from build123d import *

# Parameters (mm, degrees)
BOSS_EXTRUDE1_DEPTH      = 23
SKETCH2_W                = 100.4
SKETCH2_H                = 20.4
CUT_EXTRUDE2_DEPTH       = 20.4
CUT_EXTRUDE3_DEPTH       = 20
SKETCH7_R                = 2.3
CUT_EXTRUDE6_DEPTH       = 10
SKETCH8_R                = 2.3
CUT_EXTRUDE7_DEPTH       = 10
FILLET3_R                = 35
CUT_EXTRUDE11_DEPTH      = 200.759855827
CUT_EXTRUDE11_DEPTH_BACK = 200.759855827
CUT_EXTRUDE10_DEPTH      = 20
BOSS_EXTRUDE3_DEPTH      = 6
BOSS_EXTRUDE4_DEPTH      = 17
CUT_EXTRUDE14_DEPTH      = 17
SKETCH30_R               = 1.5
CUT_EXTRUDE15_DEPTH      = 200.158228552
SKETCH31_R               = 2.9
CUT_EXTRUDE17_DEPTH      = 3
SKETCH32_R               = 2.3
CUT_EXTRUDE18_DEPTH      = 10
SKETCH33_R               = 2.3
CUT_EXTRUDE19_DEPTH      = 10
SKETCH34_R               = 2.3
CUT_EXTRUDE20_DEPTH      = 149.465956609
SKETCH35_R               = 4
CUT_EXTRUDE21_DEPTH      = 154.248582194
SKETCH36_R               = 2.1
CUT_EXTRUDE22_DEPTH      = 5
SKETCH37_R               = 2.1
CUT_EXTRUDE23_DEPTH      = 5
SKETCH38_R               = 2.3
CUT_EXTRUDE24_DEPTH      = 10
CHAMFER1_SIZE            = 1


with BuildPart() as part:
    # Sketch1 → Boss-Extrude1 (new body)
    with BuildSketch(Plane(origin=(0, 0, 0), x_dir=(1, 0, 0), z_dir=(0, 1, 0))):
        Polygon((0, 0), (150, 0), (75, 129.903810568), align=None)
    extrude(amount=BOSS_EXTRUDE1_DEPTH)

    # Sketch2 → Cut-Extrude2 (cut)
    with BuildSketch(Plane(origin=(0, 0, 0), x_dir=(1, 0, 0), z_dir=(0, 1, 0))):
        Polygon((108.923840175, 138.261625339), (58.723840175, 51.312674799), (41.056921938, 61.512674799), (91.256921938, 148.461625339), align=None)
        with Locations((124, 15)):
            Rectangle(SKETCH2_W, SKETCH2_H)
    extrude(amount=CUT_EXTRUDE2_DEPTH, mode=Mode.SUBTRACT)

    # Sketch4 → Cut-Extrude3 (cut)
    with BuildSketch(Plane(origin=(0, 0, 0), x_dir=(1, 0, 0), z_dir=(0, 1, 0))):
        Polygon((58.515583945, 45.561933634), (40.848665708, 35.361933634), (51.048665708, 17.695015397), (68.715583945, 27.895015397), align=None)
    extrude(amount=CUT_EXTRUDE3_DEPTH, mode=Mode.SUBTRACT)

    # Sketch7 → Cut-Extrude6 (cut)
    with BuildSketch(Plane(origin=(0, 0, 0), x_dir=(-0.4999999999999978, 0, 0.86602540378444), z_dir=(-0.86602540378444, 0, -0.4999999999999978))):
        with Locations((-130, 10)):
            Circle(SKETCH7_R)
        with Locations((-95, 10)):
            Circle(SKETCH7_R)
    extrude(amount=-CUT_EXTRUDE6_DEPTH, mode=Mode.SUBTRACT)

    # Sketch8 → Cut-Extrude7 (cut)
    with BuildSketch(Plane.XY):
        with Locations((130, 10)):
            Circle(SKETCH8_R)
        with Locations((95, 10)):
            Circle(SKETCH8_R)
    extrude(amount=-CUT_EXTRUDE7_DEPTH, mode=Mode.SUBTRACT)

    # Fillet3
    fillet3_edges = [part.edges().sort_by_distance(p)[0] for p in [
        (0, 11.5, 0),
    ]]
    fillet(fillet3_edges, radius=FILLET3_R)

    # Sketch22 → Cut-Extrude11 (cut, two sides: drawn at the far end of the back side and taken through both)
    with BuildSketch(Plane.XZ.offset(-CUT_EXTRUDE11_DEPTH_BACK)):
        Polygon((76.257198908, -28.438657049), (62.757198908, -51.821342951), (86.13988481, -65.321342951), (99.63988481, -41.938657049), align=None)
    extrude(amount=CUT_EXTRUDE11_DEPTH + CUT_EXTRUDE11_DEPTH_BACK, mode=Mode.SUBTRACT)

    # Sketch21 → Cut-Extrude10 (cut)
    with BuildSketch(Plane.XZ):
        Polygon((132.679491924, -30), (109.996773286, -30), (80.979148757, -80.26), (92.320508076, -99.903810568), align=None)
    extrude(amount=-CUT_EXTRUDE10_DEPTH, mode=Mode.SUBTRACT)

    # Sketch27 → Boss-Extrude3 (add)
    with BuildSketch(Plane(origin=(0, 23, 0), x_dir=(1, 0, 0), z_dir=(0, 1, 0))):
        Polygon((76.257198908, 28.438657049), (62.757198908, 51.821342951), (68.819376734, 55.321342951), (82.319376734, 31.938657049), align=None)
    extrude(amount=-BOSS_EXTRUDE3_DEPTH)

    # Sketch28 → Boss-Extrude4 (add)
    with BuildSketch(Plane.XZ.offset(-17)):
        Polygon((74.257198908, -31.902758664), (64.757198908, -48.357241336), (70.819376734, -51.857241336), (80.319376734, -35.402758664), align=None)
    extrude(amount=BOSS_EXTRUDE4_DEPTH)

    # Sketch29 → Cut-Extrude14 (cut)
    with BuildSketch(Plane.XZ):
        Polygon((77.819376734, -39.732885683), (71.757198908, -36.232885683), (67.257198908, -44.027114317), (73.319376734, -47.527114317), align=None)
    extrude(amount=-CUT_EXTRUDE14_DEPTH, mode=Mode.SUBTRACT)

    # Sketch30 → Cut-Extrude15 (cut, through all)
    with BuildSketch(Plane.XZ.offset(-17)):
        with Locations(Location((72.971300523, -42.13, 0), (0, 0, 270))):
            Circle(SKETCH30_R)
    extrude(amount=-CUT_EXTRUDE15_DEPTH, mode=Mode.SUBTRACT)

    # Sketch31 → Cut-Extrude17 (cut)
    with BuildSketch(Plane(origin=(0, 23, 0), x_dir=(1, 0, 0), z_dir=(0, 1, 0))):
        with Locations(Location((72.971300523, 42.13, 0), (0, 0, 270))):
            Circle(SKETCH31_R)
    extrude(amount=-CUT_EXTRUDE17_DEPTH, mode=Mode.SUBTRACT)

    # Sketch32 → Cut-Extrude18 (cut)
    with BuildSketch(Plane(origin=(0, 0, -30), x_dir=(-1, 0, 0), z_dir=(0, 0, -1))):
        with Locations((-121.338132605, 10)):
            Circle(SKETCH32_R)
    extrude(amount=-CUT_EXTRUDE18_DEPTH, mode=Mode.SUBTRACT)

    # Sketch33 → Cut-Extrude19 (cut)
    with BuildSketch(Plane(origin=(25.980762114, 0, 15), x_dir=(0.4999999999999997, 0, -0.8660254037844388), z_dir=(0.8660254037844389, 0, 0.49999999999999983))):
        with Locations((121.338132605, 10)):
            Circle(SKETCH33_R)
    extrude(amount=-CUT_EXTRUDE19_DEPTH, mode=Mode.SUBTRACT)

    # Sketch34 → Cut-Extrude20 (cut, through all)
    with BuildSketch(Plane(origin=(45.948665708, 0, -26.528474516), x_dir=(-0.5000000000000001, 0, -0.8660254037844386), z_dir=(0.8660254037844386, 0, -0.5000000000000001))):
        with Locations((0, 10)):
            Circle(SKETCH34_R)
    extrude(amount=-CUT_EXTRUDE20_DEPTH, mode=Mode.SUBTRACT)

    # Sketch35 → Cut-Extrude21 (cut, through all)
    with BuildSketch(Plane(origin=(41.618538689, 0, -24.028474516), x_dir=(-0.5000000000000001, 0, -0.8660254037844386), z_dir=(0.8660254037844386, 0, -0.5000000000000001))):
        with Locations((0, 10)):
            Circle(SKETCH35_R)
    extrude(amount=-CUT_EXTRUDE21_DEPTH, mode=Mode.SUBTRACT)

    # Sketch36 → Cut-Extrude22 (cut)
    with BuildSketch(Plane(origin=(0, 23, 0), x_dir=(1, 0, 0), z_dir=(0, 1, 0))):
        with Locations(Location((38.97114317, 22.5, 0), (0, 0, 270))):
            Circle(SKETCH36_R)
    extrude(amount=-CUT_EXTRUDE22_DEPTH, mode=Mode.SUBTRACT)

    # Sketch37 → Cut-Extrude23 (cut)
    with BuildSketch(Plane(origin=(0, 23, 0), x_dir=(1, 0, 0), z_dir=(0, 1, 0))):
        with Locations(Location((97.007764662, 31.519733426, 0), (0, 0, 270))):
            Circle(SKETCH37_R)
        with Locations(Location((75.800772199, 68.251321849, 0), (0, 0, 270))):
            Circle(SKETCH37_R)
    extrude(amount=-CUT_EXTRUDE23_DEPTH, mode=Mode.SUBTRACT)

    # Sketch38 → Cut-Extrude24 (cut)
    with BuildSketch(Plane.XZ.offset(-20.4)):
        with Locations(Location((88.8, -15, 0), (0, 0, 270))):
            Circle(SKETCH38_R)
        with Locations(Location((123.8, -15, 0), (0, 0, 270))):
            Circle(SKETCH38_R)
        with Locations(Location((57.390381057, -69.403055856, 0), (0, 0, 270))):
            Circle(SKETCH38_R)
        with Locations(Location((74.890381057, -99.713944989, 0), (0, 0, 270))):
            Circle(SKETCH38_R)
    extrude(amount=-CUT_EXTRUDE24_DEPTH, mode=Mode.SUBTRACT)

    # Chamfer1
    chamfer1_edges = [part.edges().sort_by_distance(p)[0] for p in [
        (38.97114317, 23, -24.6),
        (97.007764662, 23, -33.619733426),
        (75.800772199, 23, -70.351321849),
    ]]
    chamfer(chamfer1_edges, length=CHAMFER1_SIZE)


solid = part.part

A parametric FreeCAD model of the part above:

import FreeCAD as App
import Part
import Sketcher
from FreeCAD import Vector
Q = App.Units.Quantity


def edges_at(feature, points):
    """Names of the edges that pass closest to the given points."""
    edges = feature.Shape.Edges
    near = lambda p: min(range(len(edges)), key=lambda i: edges[i].distToShape(Part.Vertex(*p))[0])
    return sorted({f"Edge{near(p) + 1}" for p in points})


def add_polygon(sketch, points):
    """Adds a closed chain of lines whose ends are joined by coincident constraints."""
    first, n = sketch.GeometryCount, len(points)
    for a, b in zip(points, points[1:] + points[:1]):
        sketch.addGeometry(Part.LineSegment(App.Vector(*a, 0), App.Vector(*b, 0)), False)
    for i in range(n):
        sketch.addConstraint(Sketcher.Constraint("Coincident", first + i, 2, first + (i + 1) % n, 1))

doc = App.newDocument("Part")
body = doc.addObject("PartDesign::Body", "Body")

# Sketch on XZ plane
sketch1 = body.newObject("Sketcher::SketchObject", "Sketch")
sketch1.AttachmentSupport = (doc.getObject("XZ_Plane"), [""])
sketch1.MapMode = "FlatFace"
add_polygon(sketch1, [(0, 0), (150, 0), (75, -129.903811)])  # lines 0-2
sketch1.addConstraint([
    Sketcher.Constraint("Horizontal", 0),
    Sketcher.Constraint("Coincident", 2, 2, -1, 1),
    Sketcher.Constraint("Equal", 1, 2),
    Sketcher.Constraint("DistanceX", 0, 1, 0, 2, 150.0),
    Sketcher.Constraint("Angle", 1, Q("-120 deg")),
])
pad1 = body.newObject("PartDesign::Pad", "Pad")
pad1.Profile = sketch1
pad1.Length = 23
pad1.Reversed = True

# Sketch on XZ plane
sketch2 = body.newObject("Sketcher::SketchObject", "Sketch001")
sketch2.AttachmentSupport = (doc.getObject("XZ_Plane"), [""])
sketch2.MapMode = "FlatFace"
add_polygon(sketch2, [(58.72384, -51.312675), (108.92384, -138.261625), (91.256922, -148.461625), (41.056922, -61.512675)])  # lines 0-3
add_polygon(sketch2, [(73.8, -25.2), (73.8, -4.8), (174.2, -4.8), (174.2, -25.2)])  # lines 4-7
sketch2.addConstraint([
    Sketcher.Constraint("Vertical", 4),
    Sketcher.Constraint("Horizontal", 5),
    Sketcher.Constraint("Vertical", 6),
    Sketcher.Constraint("Horizontal", 7),
    Sketcher.Constraint("Perpendicular", 0, 1),
    Sketcher.Constraint("Perpendicular", 1, 2),
    Sketcher.Constraint("Perpendicular", 2, 3),
    Sketcher.Constraint("Angle", 0, Q("-60 deg")),
    Sketcher.Constraint("DistanceX", 5, 1, 5, 2, 100.4),
    Sketcher.Constraint("DistanceY", 4, 1, 4, 2, 20.4),
    Sketcher.Constraint("Distance", 0, 100.4),
    Sketcher.Constraint("Distance", 1, 20.4),
    Sketcher.Constraint("DistanceX", -1, 1, 4, 2, 73.8),
    Sketcher.Constraint("DistanceY", 4, 2, -1, 1, 4.8),
    Sketcher.Constraint("DistanceX", -1, 1, 0, 2, 108.92384),
    Sketcher.Constraint("DistanceY", 0, 2, -1, 1, 138.261625),
])
pocket1 = body.newObject("PartDesign::Pocket", "Pocket")
pocket1.Profile = sketch2
pocket1.Length = 20.4

# Sketch on XZ plane
sketch3 = body.newObject("Sketcher::SketchObject", "Sketch002")
sketch3.AttachmentSupport = (doc.getObject("XZ_Plane"), [""])
sketch3.MapMode = "FlatFace"
add_polygon(sketch3, [(58.515584, -45.561934), (40.848666, -35.361934), (51.048666, -17.695015), (68.715584, -27.895015)])  # lines 0-3
sketch3.addConstraint([
    Sketcher.Constraint("Perpendicular", 0, 1),
    Sketcher.Constraint("Perpendicular", 1, 2),
    Sketcher.Constraint("Perpendicular", 2, 3),
    Sketcher.Constraint("Equal", 0, 1),
    Sketcher.Constraint("Angle", 0, Q("150 deg")),
    Sketcher.Constraint("Distance", 0, 20.4),
    Sketcher.Constraint("DistanceX", -1, 1, 0, 2, 40.848666),
    Sketcher.Constraint("DistanceY", 0, 2, -1, 1, 35.361934),
])
pocket2 = body.newObject("PartDesign::Pocket", "Pocket001")
pocket2.Profile = sketch3
pocket2.Length = 20

# Sketch on an angled plane
sketch4 = body.newObject("Sketcher::SketchObject", "Sketch003")
sketch4.Placement = App.Placement(Vector(0, 0, 0), App.Rotation(Vector(-0.5, 0, 0.866025404), Vector(0, 1, 0), Vector(-0.866025404, 0, -0.5), "ZXY"))
sketch4.addGeometry([
    Part.Circle(Vector(-130, 10, 0), Vector(0, 0, 1), 2.3),
    Part.Circle(Vector(-95, 10, 0), Vector(0, 0, 1), 2.3),
], False)
sketch4.addConstraint([
    Sketcher.Constraint("Equal", 0, 1),
    Sketcher.Constraint("Horizontal", 0, 3, 1, 3),
    Sketcher.Constraint("Diameter", 0, 4.6),
    Sketcher.Constraint("DistanceX", 0, 3, -1, 1, 130.0),
    Sketcher.Constraint("DistanceY", -1, 1, 0, 3, 10.0),
    Sketcher.Constraint("DistanceX", 1, 3, -1, 1, 95.0),
])
pocket3 = body.newObject("PartDesign::Pocket", "Pocket002")
pocket3.Profile = sketch4
pocket3.Length = 10

# Sketch on XY plane
sketch5 = body.newObject("Sketcher::SketchObject", "Sketch004")
sketch5.AttachmentSupport = (doc.getObject("XY_Plane"), [""])
sketch5.MapMode = "FlatFace"
sketch5.addGeometry([
    Part.Circle(Vector(130, 10, 0), Vector(0, 0, 1), 2.3),
    Part.Circle(Vector(95, 10, 0), Vector(0, 0, 1), 2.3),
], False)
sketch5.addConstraint([
    Sketcher.Constraint("Equal", 0, 1),
    Sketcher.Constraint("Horizontal", 0, 3, 1, 3),
    Sketcher.Constraint("Diameter", 0, 4.6),
    Sketcher.Constraint("DistanceX", -1, 1, 0, 3, 130.0),
    Sketcher.Constraint("DistanceY", -1, 1, 0, 3, 10.0),
    Sketcher.Constraint("DistanceX", -1, 1, 1, 3, 95.0),
])
pocket4 = body.newObject("PartDesign::Pocket", "Pocket003")
pocket4.Profile = sketch5
pocket4.Length = 10
doc.recompute()

fillet = body.newObject("PartDesign::Fillet", "Fillet")
fillet.Base = (pocket4, edges_at(pocket4, [(0, 11.5, 0)]))
fillet.Radius = 35

# Sketch on XZ plane
sketch6 = body.newObject("Sketcher::SketchObject", "Sketch005")
sketch6.AttachmentSupport = (doc.getObject("XZ_Plane"), [""])
sketch6.MapMode = "FlatFace"
add_polygon(sketch6, [(76.257199, -28.438657), (62.757199, -51.821343), (86.139885, -65.321343), (99.639885, -41.938657)])  # lines 0-3
sketch6.addConstraint([
    Sketcher.Constraint("Perpendicular", 0, 1),
    Sketcher.Constraint("Perpendicular", 1, 2),
    Sketcher.Constraint("Perpendicular", 2, 3),
    Sketcher.Constraint("Equal", 0, 1),
    Sketcher.Constraint("Angle", 0, Q("-120 deg")),
    Sketcher.Constraint("Distance", 0, 27.0),
    Sketcher.Constraint("DistanceX", -1, 1, 0, 2, 62.757199),
    Sketcher.Constraint("DistanceY", 0, 2, -1, 1, 51.821343),
])
pocket5 = body.newObject("PartDesign::Pocket", "Pocket004")
pocket5.Profile = sketch6
pocket5.Type = "ThroughAll"
pocket5.Midplane = True

# Sketch on XZ plane
sketch7 = body.newObject("Sketcher::SketchObject", "Sketch006")
sketch7.AttachmentSupport = (doc.getObject("XZ_Plane"), [""])
sketch7.MapMode = "FlatFace"
add_polygon(sketch7, [(132.679492, -30), (109.996773, -30), (80.979149, -80.26), (92.320508, -99.903811)])  # lines 0-3
sketch7.addConstraint([
    Sketcher.Constraint("Horizontal", 0),
    Sketcher.Constraint("Parallel", 1, 3),
    Sketcher.Constraint("Angle", 1, Q("-120 deg")),
    Sketcher.Constraint("Angle", 2, Q("-60 deg")),
    Sketcher.Constraint("DistanceY", 0, 2, -1, 1, 30.0),
    Sketcher.Constraint("DistanceY", 1, 2, -1, 1, 80.26),
    Sketcher.Constraint("DistanceX", 0, 2, 0, 1, 22.682719),
    Sketcher.Constraint("DistanceX", -1, 1, 1, 2, 80.979149),
])
pocket6 = body.newObject("PartDesign::Pocket", "Pocket005")
pocket6.Profile = sketch7
pocket6.Length = 20

# Sketch on XZ plane
sketch8 = body.newObject("Sketcher::SketchObject", "Sketch007")
sketch8.AttachmentSupport = (doc.getObject("XZ_Plane"), [""])
sketch8.MapMode = "FlatFace"
sketch8.AttachmentOffset = App.Placement(Vector(0, 0, -23), App.Rotation())
add_polygon(sketch8, [(62.757199, -51.821343), (76.257199, -28.438657), (82.319377, -31.938657), (68.819377, -55.321343)])  # lines 0-3
sketch8.addConstraint([
    Sketcher.Constraint("Perpendicular", 0, 1),
    Sketcher.Constraint("Perpendicular", 1, 2),
    Sketcher.Constraint("Perpendicular", 2, 3),
    Sketcher.Constraint("Angle", 0, Q("60 deg")),
    Sketcher.Constraint("Distance", 0, 27.0),
    Sketcher.Constraint("Distance", 1, 7.0),
    Sketcher.Constraint("DistanceX", -1, 1, 0, 2, 76.257199),
    Sketcher.Constraint("DistanceY", 0, 2, -1, 1, 28.438657),
])
pad2 = body.newObject("PartDesign::Pad", "Pad001")
pad2.Profile = sketch8
pad2.Length = 6

# Sketch on XZ plane
sketch9 = body.newObject("Sketcher::SketchObject", "Sketch008")
sketch9.AttachmentSupport = (doc.getObject("XZ_Plane"), [""])
sketch9.MapMode = "FlatFace"
sketch9.AttachmentOffset = App.Placement(Vector(0, 0, -17), App.Rotation())
add_polygon(sketch9, [(74.257199, -31.902759), (64.757199, -48.357241), (70.819377, -51.857241), (80.319377, -35.402759)])  # lines 0-3
sketch9.addConstraint([
    Sketcher.Constraint("Perpendicular", 0, 1),
    Sketcher.Constraint("Perpendicular", 1, 2),
    Sketcher.Constraint("Perpendicular", 2, 3),
    Sketcher.Constraint("Angle", 0, Q("-120 deg")),
    Sketcher.Constraint("Distance", 0, 19.0),
    Sketcher.Constraint("Distance", 1, 7.0),
    Sketcher.Constraint("DistanceX", -1, 1, 0, 2, 64.757199),
    Sketcher.Constraint("DistanceY", 0, 2, -1, 1, 48.357241),
])
pad3 = body.newObject("PartDesign::Pad", "Pad002")
pad3.Profile = sketch9
pad3.Length = 17

# Sketch on XZ plane
sketch10 = body.newObject("Sketcher::SketchObject", "Sketch009")
sketch10.AttachmentSupport = (doc.getObject("XZ_Plane"), [""])
sketch10.MapMode = "FlatFace"
add_polygon(sketch10, [(77.819377, -39.732886), (71.757199, -36.232886), (67.257199, -44.027114), (73.319377, -47.527114)])  # lines 0-3
sketch10.addConstraint([
    Sketcher.Constraint("Perpendicular", 0, 1),
    Sketcher.Constraint("Perpendicular", 1, 2),
    Sketcher.Constraint("Perpendicular", 2, 3),
    Sketcher.Constraint("Angle", 0, Q("150 deg")),
    Sketcher.Constraint("Distance", 0, 7.0),
    Sketcher.Constraint("Distance", 1, 9.0),
    Sketcher.Constraint("DistanceX", -1, 1, 0, 2, 71.757199),
    Sketcher.Constraint("DistanceY", 0, 2, -1, 1, 36.232886),
])
pocket7 = body.newObject("PartDesign::Pocket", "Pocket006")
pocket7.Profile = sketch10
pocket7.Length = 17

# Sketch on XZ plane
sketch11 = body.newObject("Sketcher::SketchObject", "Sketch010")
sketch11.AttachmentSupport = (doc.getObject("XZ_Plane"), [""])
sketch11.MapMode = "FlatFace"
sketch11.AttachmentOffset = App.Placement(Vector(0, 0, -17), App.Rotation())
sketch11.addGeometry(Part.Circle(Vector(72.971301, -42.13, 0), Vector(0, 0, 1), 1.5), False)
sketch11.addConstraint([
    Sketcher.Constraint("Diameter", 0, 3.0),
    Sketcher.Constraint("DistanceY", 0, 3, -1, 1, 42.13),
    Sketcher.Constraint("DistanceX", -1, 1, 0, 3, 72.971301),
])
pocket8 = body.newObject("PartDesign::Pocket", "Pocket007")
pocket8.Profile = sketch11
pocket8.Type = "ThroughAll"

# Sketch on XZ plane
sketch12 = body.newObject("Sketcher::SketchObject", "Sketch011")
sketch12.AttachmentSupport = (doc.getObject("XZ_Plane"), [""])
sketch12.MapMode = "FlatFace"
sketch12.AttachmentOffset = App.Placement(Vector(0, 0, -23), App.Rotation())
sketch12.addGeometry(Part.Circle(Vector(72.971301, -42.13, 0), Vector(0, 0, 1), 2.9), False)
sketch12.addConstraint([
    Sketcher.Constraint("Diameter", 0, 5.8),
    Sketcher.Constraint("DistanceY", 0, 3, -1, 1, 42.13),
    Sketcher.Constraint("DistanceX", -1, 1, 0, 3, 72.971301),
])
pocket9 = body.newObject("PartDesign::Pocket", "Pocket008")
pocket9.Profile = sketch12
pocket9.Length = 3
pocket9.Reversed = True

# Sketch on XY plane
sketch13 = body.newObject("Sketcher::SketchObject", "Sketch012")
sketch13.AttachmentSupport = (doc.getObject("XY_Plane"), [""])
sketch13.MapMode = "FlatFace"
sketch13.AttachmentOffset = App.Placement(Vector(0, 0, -30), App.Rotation())
sketch13.addGeometry(Part.Circle(Vector(121.338133, 10, 0), Vector(0, 0, 1), 2.3), False)
sketch13.addConstraint([
    Sketcher.Constraint("Diameter", 0, 4.6),
    Sketcher.Constraint("DistanceY", -1, 1, 0, 3, 10.0),
    Sketcher.Constraint("DistanceX", -1, 1, 0, 3, 121.338133),
])
pocket10 = body.newObject("PartDesign::Pocket", "Pocket009")
pocket10.Profile = sketch13
pocket10.Length = 10
pocket10.Reversed = True

# Sketch on an angled plane
sketch14 = body.newObject("Sketcher::SketchObject", "Sketch013")
sketch14.Placement = App.Placement(Vector(25.980762, 0, 15), App.Rotation(Vector(0.5, 0, -0.866025404), Vector(0, 1, 0), Vector(0.866025404, 0, 0.5), "ZXY"))
sketch14.addGeometry(Part.Circle(Vector(121.338133, 10, 0), Vector(0, 0, 1), 2.3), False)
sketch14.addConstraint([
    Sketcher.Constraint("Diameter", 0, 4.6),
    Sketcher.Constraint("DistanceY", -1, 1, 0, 3, 10.0),
    Sketcher.Constraint("DistanceX", -1, 1, 0, 3, 121.338133),
])
pocket11 = body.newObject("PartDesign::Pocket", "Pocket010")
pocket11.Profile = sketch14
pocket11.Length = 10

# Sketch on an angled plane
sketch15 = body.newObject("Sketcher::SketchObject", "Sketch014")
sketch15.Placement = App.Placement(Vector(45.948666, 0, -26.528475), App.Rotation(Vector(-0.5, 0, -0.866025404), Vector(0, 1, 0), Vector(0.866025404, 0, -0.5), "ZXY"))
sketch15.addGeometry(Part.Circle(Vector(0, 10, 0), Vector(0, 0, 1), 2.3), False)
sketch15.addConstraint([
    Sketcher.Constraint("PointOnObject", 0, 3, -2),
    Sketcher.Constraint("Diameter", 0, 4.6),
    Sketcher.Constraint("DistanceY", -1, 1, 0, 3, 10.0),
])
pocket12 = body.newObject("PartDesign::Pocket", "Pocket011")
pocket12.Profile = sketch15
pocket12.Type = "ThroughAll"

# Sketch on an angled plane
sketch16 = body.newObject("Sketcher::SketchObject", "Sketch015")
sketch16.Placement = App.Placement(Vector(41.618539, 0, -24.028475), App.Rotation(Vector(-0.5, 0, -0.866025404), Vector(0, 1, 0), Vector(0.866025404, 0, -0.5), "ZXY"))
sketch16.addGeometry(Part.Circle(Vector(0, 10, 0), Vector(0, 0, 1), 4), False)
sketch16.addConstraint([
    Sketcher.Constraint("PointOnObject", 0, 3, -2),
    Sketcher.Constraint("Diameter", 0, 8.0),
    Sketcher.Constraint("DistanceY", -1, 1, 0, 3, 10.0),
])
pocket13 = body.newObject("PartDesign::Pocket", "Pocket012")
pocket13.Profile = sketch16
pocket13.Type = "ThroughAll"

# Sketch on XZ plane
sketch17 = body.newObject("Sketcher::SketchObject", "Sketch016")
sketch17.AttachmentSupport = (doc.getObject("XZ_Plane"), [""])
sketch17.MapMode = "FlatFace"
sketch17.AttachmentOffset = App.Placement(Vector(0, 0, -23), App.Rotation())
sketch17.addGeometry(Part.Circle(Vector(38.971143, -22.5, 0), Vector(0, 0, 1), 2.1), False)
sketch17.addConstraint([
    Sketcher.Constraint("Diameter", 0, 4.2),
    Sketcher.Constraint("DistanceY", 0, 3, -1, 1, 22.5),
    Sketcher.Constraint("DistanceX", -1, 1, 0, 3, 38.971143),
])
pocket14 = body.newObject("PartDesign::Pocket", "Pocket013")
pocket14.Profile = sketch17
pocket14.Length = 5
pocket14.Reversed = True

# Sketch on XZ plane
sketch18 = body.newObject("Sketcher::SketchObject", "Sketch017")
sketch18.AttachmentSupport = (doc.getObject("XZ_Plane"), [""])
sketch18.MapMode = "FlatFace"
sketch18.AttachmentOffset = App.Placement(Vector(0, 0, -23), App.Rotation())
sketch18.addGeometry([
    Part.Circle(Vector(97.007765, -31.519733, 0), Vector(0, 0, 1), 2.1),
    Part.Circle(Vector(75.800772, -68.251322, 0), Vector(0, 0, 1), 2.1),
], False)
sketch18.addConstraint([
    Sketcher.Constraint("Equal", 0, 1),
    Sketcher.Constraint("Diameter", 0, 4.2),
    Sketcher.Constraint("DistanceY", 1, 3, -1, 1, 68.251322),
    Sketcher.Constraint("DistanceY", 1, 3, 0, 3, 36.731588),
    Sketcher.Constraint("DistanceX", -1, 1, 0, 3, 97.007765),
    Sketcher.Constraint("DistanceX", -1, 1, 1, 3, 75.800772),
])
pocket15 = body.newObject("PartDesign::Pocket", "Pocket014")
pocket15.Profile = sketch18
pocket15.Length = 5
pocket15.Reversed = True

# Sketch on XZ plane
sketch19 = body.newObject("Sketcher::SketchObject", "Sketch018")
sketch19.AttachmentSupport = (doc.getObject("XZ_Plane"), [""])
sketch19.MapMode = "FlatFace"
sketch19.AttachmentOffset = App.Placement(Vector(0, 0, -20.4), App.Rotation())
sketch19.addGeometry([
    Part.Circle(Vector(88.8, -15, 0), Vector(0, 0, 1), 2.3),
    Part.Circle(Vector(123.8, -15, 0), Vector(0, 0, 1), 2.3),
    Part.Circle(Vector(57.390381, -69.403056, 0), Vector(0, 0, 1), 2.3),
    Part.Circle(Vector(74.890381, -99.713945, 0), Vector(0, 0, 1), 2.3),
], False)
sketch19.addConstraint([
    Sketcher.Constraint("Equal", 0, 1),
    Sketcher.Constraint("Equal", 1, 2),
    Sketcher.Constraint("Equal", 2, 3),
    Sketcher.Constraint("Horizontal", 0, 3, 1, 3),
    Sketcher.Constraint("Diameter", 0, 4.6),
    Sketcher.Constraint("DistanceY", 0, 3, -1, 1, 15.0),
    Sketcher.Constraint("DistanceX", 0, 3, 1, 3, 35.0),
    Sketcher.Constraint("DistanceX", -1, 1, 0, 3, 88.8),
    Sketcher.Constraint("DistanceX", 2, 3, 3, 3, 17.5),
    Sketcher.Constraint("DistanceX", -1, 1, 2, 3, 57.390381),
    Sketcher.Constraint("DistanceY", 3, 3, 2, 3, 30.310889),
    Sketcher.Constraint("DistanceY", 2, 3, -1, 1, 69.403056),
])
pocket16 = body.newObject("PartDesign::Pocket", "Pocket015")
pocket16.Profile = sketch19
pocket16.Length = 10
doc.recompute()

chamfer = body.newObject("PartDesign::Chamfer", "Chamfer")
chamfer.Base = (pocket16, edges_at(pocket16, [(38.971, 23, -24.6), (97.008, 23, -33.62), (75.801, 23, -70.351)]))
chamfer.Size = 1

doc.recompute()
